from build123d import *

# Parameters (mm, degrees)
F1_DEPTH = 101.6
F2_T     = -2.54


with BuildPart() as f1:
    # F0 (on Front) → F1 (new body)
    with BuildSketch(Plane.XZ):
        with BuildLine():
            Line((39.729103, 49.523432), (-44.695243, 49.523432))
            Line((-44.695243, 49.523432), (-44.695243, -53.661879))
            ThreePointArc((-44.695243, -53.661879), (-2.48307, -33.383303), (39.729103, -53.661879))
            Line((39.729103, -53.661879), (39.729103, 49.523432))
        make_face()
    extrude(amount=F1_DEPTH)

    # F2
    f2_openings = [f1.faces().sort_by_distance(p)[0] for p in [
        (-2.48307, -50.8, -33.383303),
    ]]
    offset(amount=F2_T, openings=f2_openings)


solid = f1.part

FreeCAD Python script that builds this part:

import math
import FreeCAD as App
import Part
import Sketcher

V = App.Vector
Q = App.Units.Quantity


def faces_at(feature, points):
    """Names of the faces that lie closest to the given points."""
    faces = feature.Shape.Faces
    near = lambda p: min(range(len(faces)), key=lambda i: faces[i].distToShape(Part.Vertex(*p))[0])
    return sorted({f"Face{near(p) + 1}" for p in points})

doc = App.newDocument("Part")
body = doc.addObject("PartDesign::Body", "Body")

sketch1 = body.newObject("Sketcher::SketchObject", "Sketch")
sketch1.AttachmentSupport = (doc.getObject("XZ_Plane"), [""])
sketch1.MapMode = "FlatFace"
sketch1.addGeometry([
    Part.LineSegment(V(40, 50, 0), V(-45, 50, 0)),
    Part.LineSegment(V(-45, 50, 0), V(-45, -54, 0)),
    Part.ArcOfCircle(Part.Circle(V(-2, -87, 0), V(0, 0, 1), 54), math.radians(39), math.radians(141)),
    Part.LineSegment(V(40, -54, 0), V(40, 50, 0)),
], False)
sketch1.addConstraint([
    Sketcher.Constraint("Coincident", 0, 2, 1, 1),
    Sketcher.Constraint("Coincident", 1, 2, 2, 2),
    Sketcher.Constraint("Coincident", 2, 1, 3, 1),
    Sketcher.Constraint("Coincident", 3, 2, 0, 1),
    Sketcher.Constraint("Horizontal", 0),
    Sketcher.Constraint("Vertical", 1),
    Sketcher.Constraint("Vertical", 3),
    Sketcher.Constraint("Horizontal", 1, 2, 2, 1),
    Sketcher.Constraint("Radius", 2, 54.074019),
    Sketcher.Constraint("DistanceY", 1, 2, 1, 1, 103.185311),
    Sketcher.Constraint("DistanceX", 0, 2, 0, 1, 84.424346),
    Sketcher.Constraint("DistanceX", 2, 3, -1, 1, 2.48307),
    Sketcher.Constraint("DistanceY", 2, 3, -1, 1, 87.457322),
])
pad1 = body.newObject("PartDesign::Pad", "Pad")
pad1.Profile = sketch1
pad1.Length = Q("4 in")
doc.recompute()

thickness = body.newObject("PartDesign::Thickness", "Thickness")
thickness.Base = (pad1, faces_at(pad1, [(-2.483, -50.8, -33.383)]))
thickness.Value = Q("0.1 in")
thickness.Reversed = True
thickness.Join = "Arc"

doc.recompute()
